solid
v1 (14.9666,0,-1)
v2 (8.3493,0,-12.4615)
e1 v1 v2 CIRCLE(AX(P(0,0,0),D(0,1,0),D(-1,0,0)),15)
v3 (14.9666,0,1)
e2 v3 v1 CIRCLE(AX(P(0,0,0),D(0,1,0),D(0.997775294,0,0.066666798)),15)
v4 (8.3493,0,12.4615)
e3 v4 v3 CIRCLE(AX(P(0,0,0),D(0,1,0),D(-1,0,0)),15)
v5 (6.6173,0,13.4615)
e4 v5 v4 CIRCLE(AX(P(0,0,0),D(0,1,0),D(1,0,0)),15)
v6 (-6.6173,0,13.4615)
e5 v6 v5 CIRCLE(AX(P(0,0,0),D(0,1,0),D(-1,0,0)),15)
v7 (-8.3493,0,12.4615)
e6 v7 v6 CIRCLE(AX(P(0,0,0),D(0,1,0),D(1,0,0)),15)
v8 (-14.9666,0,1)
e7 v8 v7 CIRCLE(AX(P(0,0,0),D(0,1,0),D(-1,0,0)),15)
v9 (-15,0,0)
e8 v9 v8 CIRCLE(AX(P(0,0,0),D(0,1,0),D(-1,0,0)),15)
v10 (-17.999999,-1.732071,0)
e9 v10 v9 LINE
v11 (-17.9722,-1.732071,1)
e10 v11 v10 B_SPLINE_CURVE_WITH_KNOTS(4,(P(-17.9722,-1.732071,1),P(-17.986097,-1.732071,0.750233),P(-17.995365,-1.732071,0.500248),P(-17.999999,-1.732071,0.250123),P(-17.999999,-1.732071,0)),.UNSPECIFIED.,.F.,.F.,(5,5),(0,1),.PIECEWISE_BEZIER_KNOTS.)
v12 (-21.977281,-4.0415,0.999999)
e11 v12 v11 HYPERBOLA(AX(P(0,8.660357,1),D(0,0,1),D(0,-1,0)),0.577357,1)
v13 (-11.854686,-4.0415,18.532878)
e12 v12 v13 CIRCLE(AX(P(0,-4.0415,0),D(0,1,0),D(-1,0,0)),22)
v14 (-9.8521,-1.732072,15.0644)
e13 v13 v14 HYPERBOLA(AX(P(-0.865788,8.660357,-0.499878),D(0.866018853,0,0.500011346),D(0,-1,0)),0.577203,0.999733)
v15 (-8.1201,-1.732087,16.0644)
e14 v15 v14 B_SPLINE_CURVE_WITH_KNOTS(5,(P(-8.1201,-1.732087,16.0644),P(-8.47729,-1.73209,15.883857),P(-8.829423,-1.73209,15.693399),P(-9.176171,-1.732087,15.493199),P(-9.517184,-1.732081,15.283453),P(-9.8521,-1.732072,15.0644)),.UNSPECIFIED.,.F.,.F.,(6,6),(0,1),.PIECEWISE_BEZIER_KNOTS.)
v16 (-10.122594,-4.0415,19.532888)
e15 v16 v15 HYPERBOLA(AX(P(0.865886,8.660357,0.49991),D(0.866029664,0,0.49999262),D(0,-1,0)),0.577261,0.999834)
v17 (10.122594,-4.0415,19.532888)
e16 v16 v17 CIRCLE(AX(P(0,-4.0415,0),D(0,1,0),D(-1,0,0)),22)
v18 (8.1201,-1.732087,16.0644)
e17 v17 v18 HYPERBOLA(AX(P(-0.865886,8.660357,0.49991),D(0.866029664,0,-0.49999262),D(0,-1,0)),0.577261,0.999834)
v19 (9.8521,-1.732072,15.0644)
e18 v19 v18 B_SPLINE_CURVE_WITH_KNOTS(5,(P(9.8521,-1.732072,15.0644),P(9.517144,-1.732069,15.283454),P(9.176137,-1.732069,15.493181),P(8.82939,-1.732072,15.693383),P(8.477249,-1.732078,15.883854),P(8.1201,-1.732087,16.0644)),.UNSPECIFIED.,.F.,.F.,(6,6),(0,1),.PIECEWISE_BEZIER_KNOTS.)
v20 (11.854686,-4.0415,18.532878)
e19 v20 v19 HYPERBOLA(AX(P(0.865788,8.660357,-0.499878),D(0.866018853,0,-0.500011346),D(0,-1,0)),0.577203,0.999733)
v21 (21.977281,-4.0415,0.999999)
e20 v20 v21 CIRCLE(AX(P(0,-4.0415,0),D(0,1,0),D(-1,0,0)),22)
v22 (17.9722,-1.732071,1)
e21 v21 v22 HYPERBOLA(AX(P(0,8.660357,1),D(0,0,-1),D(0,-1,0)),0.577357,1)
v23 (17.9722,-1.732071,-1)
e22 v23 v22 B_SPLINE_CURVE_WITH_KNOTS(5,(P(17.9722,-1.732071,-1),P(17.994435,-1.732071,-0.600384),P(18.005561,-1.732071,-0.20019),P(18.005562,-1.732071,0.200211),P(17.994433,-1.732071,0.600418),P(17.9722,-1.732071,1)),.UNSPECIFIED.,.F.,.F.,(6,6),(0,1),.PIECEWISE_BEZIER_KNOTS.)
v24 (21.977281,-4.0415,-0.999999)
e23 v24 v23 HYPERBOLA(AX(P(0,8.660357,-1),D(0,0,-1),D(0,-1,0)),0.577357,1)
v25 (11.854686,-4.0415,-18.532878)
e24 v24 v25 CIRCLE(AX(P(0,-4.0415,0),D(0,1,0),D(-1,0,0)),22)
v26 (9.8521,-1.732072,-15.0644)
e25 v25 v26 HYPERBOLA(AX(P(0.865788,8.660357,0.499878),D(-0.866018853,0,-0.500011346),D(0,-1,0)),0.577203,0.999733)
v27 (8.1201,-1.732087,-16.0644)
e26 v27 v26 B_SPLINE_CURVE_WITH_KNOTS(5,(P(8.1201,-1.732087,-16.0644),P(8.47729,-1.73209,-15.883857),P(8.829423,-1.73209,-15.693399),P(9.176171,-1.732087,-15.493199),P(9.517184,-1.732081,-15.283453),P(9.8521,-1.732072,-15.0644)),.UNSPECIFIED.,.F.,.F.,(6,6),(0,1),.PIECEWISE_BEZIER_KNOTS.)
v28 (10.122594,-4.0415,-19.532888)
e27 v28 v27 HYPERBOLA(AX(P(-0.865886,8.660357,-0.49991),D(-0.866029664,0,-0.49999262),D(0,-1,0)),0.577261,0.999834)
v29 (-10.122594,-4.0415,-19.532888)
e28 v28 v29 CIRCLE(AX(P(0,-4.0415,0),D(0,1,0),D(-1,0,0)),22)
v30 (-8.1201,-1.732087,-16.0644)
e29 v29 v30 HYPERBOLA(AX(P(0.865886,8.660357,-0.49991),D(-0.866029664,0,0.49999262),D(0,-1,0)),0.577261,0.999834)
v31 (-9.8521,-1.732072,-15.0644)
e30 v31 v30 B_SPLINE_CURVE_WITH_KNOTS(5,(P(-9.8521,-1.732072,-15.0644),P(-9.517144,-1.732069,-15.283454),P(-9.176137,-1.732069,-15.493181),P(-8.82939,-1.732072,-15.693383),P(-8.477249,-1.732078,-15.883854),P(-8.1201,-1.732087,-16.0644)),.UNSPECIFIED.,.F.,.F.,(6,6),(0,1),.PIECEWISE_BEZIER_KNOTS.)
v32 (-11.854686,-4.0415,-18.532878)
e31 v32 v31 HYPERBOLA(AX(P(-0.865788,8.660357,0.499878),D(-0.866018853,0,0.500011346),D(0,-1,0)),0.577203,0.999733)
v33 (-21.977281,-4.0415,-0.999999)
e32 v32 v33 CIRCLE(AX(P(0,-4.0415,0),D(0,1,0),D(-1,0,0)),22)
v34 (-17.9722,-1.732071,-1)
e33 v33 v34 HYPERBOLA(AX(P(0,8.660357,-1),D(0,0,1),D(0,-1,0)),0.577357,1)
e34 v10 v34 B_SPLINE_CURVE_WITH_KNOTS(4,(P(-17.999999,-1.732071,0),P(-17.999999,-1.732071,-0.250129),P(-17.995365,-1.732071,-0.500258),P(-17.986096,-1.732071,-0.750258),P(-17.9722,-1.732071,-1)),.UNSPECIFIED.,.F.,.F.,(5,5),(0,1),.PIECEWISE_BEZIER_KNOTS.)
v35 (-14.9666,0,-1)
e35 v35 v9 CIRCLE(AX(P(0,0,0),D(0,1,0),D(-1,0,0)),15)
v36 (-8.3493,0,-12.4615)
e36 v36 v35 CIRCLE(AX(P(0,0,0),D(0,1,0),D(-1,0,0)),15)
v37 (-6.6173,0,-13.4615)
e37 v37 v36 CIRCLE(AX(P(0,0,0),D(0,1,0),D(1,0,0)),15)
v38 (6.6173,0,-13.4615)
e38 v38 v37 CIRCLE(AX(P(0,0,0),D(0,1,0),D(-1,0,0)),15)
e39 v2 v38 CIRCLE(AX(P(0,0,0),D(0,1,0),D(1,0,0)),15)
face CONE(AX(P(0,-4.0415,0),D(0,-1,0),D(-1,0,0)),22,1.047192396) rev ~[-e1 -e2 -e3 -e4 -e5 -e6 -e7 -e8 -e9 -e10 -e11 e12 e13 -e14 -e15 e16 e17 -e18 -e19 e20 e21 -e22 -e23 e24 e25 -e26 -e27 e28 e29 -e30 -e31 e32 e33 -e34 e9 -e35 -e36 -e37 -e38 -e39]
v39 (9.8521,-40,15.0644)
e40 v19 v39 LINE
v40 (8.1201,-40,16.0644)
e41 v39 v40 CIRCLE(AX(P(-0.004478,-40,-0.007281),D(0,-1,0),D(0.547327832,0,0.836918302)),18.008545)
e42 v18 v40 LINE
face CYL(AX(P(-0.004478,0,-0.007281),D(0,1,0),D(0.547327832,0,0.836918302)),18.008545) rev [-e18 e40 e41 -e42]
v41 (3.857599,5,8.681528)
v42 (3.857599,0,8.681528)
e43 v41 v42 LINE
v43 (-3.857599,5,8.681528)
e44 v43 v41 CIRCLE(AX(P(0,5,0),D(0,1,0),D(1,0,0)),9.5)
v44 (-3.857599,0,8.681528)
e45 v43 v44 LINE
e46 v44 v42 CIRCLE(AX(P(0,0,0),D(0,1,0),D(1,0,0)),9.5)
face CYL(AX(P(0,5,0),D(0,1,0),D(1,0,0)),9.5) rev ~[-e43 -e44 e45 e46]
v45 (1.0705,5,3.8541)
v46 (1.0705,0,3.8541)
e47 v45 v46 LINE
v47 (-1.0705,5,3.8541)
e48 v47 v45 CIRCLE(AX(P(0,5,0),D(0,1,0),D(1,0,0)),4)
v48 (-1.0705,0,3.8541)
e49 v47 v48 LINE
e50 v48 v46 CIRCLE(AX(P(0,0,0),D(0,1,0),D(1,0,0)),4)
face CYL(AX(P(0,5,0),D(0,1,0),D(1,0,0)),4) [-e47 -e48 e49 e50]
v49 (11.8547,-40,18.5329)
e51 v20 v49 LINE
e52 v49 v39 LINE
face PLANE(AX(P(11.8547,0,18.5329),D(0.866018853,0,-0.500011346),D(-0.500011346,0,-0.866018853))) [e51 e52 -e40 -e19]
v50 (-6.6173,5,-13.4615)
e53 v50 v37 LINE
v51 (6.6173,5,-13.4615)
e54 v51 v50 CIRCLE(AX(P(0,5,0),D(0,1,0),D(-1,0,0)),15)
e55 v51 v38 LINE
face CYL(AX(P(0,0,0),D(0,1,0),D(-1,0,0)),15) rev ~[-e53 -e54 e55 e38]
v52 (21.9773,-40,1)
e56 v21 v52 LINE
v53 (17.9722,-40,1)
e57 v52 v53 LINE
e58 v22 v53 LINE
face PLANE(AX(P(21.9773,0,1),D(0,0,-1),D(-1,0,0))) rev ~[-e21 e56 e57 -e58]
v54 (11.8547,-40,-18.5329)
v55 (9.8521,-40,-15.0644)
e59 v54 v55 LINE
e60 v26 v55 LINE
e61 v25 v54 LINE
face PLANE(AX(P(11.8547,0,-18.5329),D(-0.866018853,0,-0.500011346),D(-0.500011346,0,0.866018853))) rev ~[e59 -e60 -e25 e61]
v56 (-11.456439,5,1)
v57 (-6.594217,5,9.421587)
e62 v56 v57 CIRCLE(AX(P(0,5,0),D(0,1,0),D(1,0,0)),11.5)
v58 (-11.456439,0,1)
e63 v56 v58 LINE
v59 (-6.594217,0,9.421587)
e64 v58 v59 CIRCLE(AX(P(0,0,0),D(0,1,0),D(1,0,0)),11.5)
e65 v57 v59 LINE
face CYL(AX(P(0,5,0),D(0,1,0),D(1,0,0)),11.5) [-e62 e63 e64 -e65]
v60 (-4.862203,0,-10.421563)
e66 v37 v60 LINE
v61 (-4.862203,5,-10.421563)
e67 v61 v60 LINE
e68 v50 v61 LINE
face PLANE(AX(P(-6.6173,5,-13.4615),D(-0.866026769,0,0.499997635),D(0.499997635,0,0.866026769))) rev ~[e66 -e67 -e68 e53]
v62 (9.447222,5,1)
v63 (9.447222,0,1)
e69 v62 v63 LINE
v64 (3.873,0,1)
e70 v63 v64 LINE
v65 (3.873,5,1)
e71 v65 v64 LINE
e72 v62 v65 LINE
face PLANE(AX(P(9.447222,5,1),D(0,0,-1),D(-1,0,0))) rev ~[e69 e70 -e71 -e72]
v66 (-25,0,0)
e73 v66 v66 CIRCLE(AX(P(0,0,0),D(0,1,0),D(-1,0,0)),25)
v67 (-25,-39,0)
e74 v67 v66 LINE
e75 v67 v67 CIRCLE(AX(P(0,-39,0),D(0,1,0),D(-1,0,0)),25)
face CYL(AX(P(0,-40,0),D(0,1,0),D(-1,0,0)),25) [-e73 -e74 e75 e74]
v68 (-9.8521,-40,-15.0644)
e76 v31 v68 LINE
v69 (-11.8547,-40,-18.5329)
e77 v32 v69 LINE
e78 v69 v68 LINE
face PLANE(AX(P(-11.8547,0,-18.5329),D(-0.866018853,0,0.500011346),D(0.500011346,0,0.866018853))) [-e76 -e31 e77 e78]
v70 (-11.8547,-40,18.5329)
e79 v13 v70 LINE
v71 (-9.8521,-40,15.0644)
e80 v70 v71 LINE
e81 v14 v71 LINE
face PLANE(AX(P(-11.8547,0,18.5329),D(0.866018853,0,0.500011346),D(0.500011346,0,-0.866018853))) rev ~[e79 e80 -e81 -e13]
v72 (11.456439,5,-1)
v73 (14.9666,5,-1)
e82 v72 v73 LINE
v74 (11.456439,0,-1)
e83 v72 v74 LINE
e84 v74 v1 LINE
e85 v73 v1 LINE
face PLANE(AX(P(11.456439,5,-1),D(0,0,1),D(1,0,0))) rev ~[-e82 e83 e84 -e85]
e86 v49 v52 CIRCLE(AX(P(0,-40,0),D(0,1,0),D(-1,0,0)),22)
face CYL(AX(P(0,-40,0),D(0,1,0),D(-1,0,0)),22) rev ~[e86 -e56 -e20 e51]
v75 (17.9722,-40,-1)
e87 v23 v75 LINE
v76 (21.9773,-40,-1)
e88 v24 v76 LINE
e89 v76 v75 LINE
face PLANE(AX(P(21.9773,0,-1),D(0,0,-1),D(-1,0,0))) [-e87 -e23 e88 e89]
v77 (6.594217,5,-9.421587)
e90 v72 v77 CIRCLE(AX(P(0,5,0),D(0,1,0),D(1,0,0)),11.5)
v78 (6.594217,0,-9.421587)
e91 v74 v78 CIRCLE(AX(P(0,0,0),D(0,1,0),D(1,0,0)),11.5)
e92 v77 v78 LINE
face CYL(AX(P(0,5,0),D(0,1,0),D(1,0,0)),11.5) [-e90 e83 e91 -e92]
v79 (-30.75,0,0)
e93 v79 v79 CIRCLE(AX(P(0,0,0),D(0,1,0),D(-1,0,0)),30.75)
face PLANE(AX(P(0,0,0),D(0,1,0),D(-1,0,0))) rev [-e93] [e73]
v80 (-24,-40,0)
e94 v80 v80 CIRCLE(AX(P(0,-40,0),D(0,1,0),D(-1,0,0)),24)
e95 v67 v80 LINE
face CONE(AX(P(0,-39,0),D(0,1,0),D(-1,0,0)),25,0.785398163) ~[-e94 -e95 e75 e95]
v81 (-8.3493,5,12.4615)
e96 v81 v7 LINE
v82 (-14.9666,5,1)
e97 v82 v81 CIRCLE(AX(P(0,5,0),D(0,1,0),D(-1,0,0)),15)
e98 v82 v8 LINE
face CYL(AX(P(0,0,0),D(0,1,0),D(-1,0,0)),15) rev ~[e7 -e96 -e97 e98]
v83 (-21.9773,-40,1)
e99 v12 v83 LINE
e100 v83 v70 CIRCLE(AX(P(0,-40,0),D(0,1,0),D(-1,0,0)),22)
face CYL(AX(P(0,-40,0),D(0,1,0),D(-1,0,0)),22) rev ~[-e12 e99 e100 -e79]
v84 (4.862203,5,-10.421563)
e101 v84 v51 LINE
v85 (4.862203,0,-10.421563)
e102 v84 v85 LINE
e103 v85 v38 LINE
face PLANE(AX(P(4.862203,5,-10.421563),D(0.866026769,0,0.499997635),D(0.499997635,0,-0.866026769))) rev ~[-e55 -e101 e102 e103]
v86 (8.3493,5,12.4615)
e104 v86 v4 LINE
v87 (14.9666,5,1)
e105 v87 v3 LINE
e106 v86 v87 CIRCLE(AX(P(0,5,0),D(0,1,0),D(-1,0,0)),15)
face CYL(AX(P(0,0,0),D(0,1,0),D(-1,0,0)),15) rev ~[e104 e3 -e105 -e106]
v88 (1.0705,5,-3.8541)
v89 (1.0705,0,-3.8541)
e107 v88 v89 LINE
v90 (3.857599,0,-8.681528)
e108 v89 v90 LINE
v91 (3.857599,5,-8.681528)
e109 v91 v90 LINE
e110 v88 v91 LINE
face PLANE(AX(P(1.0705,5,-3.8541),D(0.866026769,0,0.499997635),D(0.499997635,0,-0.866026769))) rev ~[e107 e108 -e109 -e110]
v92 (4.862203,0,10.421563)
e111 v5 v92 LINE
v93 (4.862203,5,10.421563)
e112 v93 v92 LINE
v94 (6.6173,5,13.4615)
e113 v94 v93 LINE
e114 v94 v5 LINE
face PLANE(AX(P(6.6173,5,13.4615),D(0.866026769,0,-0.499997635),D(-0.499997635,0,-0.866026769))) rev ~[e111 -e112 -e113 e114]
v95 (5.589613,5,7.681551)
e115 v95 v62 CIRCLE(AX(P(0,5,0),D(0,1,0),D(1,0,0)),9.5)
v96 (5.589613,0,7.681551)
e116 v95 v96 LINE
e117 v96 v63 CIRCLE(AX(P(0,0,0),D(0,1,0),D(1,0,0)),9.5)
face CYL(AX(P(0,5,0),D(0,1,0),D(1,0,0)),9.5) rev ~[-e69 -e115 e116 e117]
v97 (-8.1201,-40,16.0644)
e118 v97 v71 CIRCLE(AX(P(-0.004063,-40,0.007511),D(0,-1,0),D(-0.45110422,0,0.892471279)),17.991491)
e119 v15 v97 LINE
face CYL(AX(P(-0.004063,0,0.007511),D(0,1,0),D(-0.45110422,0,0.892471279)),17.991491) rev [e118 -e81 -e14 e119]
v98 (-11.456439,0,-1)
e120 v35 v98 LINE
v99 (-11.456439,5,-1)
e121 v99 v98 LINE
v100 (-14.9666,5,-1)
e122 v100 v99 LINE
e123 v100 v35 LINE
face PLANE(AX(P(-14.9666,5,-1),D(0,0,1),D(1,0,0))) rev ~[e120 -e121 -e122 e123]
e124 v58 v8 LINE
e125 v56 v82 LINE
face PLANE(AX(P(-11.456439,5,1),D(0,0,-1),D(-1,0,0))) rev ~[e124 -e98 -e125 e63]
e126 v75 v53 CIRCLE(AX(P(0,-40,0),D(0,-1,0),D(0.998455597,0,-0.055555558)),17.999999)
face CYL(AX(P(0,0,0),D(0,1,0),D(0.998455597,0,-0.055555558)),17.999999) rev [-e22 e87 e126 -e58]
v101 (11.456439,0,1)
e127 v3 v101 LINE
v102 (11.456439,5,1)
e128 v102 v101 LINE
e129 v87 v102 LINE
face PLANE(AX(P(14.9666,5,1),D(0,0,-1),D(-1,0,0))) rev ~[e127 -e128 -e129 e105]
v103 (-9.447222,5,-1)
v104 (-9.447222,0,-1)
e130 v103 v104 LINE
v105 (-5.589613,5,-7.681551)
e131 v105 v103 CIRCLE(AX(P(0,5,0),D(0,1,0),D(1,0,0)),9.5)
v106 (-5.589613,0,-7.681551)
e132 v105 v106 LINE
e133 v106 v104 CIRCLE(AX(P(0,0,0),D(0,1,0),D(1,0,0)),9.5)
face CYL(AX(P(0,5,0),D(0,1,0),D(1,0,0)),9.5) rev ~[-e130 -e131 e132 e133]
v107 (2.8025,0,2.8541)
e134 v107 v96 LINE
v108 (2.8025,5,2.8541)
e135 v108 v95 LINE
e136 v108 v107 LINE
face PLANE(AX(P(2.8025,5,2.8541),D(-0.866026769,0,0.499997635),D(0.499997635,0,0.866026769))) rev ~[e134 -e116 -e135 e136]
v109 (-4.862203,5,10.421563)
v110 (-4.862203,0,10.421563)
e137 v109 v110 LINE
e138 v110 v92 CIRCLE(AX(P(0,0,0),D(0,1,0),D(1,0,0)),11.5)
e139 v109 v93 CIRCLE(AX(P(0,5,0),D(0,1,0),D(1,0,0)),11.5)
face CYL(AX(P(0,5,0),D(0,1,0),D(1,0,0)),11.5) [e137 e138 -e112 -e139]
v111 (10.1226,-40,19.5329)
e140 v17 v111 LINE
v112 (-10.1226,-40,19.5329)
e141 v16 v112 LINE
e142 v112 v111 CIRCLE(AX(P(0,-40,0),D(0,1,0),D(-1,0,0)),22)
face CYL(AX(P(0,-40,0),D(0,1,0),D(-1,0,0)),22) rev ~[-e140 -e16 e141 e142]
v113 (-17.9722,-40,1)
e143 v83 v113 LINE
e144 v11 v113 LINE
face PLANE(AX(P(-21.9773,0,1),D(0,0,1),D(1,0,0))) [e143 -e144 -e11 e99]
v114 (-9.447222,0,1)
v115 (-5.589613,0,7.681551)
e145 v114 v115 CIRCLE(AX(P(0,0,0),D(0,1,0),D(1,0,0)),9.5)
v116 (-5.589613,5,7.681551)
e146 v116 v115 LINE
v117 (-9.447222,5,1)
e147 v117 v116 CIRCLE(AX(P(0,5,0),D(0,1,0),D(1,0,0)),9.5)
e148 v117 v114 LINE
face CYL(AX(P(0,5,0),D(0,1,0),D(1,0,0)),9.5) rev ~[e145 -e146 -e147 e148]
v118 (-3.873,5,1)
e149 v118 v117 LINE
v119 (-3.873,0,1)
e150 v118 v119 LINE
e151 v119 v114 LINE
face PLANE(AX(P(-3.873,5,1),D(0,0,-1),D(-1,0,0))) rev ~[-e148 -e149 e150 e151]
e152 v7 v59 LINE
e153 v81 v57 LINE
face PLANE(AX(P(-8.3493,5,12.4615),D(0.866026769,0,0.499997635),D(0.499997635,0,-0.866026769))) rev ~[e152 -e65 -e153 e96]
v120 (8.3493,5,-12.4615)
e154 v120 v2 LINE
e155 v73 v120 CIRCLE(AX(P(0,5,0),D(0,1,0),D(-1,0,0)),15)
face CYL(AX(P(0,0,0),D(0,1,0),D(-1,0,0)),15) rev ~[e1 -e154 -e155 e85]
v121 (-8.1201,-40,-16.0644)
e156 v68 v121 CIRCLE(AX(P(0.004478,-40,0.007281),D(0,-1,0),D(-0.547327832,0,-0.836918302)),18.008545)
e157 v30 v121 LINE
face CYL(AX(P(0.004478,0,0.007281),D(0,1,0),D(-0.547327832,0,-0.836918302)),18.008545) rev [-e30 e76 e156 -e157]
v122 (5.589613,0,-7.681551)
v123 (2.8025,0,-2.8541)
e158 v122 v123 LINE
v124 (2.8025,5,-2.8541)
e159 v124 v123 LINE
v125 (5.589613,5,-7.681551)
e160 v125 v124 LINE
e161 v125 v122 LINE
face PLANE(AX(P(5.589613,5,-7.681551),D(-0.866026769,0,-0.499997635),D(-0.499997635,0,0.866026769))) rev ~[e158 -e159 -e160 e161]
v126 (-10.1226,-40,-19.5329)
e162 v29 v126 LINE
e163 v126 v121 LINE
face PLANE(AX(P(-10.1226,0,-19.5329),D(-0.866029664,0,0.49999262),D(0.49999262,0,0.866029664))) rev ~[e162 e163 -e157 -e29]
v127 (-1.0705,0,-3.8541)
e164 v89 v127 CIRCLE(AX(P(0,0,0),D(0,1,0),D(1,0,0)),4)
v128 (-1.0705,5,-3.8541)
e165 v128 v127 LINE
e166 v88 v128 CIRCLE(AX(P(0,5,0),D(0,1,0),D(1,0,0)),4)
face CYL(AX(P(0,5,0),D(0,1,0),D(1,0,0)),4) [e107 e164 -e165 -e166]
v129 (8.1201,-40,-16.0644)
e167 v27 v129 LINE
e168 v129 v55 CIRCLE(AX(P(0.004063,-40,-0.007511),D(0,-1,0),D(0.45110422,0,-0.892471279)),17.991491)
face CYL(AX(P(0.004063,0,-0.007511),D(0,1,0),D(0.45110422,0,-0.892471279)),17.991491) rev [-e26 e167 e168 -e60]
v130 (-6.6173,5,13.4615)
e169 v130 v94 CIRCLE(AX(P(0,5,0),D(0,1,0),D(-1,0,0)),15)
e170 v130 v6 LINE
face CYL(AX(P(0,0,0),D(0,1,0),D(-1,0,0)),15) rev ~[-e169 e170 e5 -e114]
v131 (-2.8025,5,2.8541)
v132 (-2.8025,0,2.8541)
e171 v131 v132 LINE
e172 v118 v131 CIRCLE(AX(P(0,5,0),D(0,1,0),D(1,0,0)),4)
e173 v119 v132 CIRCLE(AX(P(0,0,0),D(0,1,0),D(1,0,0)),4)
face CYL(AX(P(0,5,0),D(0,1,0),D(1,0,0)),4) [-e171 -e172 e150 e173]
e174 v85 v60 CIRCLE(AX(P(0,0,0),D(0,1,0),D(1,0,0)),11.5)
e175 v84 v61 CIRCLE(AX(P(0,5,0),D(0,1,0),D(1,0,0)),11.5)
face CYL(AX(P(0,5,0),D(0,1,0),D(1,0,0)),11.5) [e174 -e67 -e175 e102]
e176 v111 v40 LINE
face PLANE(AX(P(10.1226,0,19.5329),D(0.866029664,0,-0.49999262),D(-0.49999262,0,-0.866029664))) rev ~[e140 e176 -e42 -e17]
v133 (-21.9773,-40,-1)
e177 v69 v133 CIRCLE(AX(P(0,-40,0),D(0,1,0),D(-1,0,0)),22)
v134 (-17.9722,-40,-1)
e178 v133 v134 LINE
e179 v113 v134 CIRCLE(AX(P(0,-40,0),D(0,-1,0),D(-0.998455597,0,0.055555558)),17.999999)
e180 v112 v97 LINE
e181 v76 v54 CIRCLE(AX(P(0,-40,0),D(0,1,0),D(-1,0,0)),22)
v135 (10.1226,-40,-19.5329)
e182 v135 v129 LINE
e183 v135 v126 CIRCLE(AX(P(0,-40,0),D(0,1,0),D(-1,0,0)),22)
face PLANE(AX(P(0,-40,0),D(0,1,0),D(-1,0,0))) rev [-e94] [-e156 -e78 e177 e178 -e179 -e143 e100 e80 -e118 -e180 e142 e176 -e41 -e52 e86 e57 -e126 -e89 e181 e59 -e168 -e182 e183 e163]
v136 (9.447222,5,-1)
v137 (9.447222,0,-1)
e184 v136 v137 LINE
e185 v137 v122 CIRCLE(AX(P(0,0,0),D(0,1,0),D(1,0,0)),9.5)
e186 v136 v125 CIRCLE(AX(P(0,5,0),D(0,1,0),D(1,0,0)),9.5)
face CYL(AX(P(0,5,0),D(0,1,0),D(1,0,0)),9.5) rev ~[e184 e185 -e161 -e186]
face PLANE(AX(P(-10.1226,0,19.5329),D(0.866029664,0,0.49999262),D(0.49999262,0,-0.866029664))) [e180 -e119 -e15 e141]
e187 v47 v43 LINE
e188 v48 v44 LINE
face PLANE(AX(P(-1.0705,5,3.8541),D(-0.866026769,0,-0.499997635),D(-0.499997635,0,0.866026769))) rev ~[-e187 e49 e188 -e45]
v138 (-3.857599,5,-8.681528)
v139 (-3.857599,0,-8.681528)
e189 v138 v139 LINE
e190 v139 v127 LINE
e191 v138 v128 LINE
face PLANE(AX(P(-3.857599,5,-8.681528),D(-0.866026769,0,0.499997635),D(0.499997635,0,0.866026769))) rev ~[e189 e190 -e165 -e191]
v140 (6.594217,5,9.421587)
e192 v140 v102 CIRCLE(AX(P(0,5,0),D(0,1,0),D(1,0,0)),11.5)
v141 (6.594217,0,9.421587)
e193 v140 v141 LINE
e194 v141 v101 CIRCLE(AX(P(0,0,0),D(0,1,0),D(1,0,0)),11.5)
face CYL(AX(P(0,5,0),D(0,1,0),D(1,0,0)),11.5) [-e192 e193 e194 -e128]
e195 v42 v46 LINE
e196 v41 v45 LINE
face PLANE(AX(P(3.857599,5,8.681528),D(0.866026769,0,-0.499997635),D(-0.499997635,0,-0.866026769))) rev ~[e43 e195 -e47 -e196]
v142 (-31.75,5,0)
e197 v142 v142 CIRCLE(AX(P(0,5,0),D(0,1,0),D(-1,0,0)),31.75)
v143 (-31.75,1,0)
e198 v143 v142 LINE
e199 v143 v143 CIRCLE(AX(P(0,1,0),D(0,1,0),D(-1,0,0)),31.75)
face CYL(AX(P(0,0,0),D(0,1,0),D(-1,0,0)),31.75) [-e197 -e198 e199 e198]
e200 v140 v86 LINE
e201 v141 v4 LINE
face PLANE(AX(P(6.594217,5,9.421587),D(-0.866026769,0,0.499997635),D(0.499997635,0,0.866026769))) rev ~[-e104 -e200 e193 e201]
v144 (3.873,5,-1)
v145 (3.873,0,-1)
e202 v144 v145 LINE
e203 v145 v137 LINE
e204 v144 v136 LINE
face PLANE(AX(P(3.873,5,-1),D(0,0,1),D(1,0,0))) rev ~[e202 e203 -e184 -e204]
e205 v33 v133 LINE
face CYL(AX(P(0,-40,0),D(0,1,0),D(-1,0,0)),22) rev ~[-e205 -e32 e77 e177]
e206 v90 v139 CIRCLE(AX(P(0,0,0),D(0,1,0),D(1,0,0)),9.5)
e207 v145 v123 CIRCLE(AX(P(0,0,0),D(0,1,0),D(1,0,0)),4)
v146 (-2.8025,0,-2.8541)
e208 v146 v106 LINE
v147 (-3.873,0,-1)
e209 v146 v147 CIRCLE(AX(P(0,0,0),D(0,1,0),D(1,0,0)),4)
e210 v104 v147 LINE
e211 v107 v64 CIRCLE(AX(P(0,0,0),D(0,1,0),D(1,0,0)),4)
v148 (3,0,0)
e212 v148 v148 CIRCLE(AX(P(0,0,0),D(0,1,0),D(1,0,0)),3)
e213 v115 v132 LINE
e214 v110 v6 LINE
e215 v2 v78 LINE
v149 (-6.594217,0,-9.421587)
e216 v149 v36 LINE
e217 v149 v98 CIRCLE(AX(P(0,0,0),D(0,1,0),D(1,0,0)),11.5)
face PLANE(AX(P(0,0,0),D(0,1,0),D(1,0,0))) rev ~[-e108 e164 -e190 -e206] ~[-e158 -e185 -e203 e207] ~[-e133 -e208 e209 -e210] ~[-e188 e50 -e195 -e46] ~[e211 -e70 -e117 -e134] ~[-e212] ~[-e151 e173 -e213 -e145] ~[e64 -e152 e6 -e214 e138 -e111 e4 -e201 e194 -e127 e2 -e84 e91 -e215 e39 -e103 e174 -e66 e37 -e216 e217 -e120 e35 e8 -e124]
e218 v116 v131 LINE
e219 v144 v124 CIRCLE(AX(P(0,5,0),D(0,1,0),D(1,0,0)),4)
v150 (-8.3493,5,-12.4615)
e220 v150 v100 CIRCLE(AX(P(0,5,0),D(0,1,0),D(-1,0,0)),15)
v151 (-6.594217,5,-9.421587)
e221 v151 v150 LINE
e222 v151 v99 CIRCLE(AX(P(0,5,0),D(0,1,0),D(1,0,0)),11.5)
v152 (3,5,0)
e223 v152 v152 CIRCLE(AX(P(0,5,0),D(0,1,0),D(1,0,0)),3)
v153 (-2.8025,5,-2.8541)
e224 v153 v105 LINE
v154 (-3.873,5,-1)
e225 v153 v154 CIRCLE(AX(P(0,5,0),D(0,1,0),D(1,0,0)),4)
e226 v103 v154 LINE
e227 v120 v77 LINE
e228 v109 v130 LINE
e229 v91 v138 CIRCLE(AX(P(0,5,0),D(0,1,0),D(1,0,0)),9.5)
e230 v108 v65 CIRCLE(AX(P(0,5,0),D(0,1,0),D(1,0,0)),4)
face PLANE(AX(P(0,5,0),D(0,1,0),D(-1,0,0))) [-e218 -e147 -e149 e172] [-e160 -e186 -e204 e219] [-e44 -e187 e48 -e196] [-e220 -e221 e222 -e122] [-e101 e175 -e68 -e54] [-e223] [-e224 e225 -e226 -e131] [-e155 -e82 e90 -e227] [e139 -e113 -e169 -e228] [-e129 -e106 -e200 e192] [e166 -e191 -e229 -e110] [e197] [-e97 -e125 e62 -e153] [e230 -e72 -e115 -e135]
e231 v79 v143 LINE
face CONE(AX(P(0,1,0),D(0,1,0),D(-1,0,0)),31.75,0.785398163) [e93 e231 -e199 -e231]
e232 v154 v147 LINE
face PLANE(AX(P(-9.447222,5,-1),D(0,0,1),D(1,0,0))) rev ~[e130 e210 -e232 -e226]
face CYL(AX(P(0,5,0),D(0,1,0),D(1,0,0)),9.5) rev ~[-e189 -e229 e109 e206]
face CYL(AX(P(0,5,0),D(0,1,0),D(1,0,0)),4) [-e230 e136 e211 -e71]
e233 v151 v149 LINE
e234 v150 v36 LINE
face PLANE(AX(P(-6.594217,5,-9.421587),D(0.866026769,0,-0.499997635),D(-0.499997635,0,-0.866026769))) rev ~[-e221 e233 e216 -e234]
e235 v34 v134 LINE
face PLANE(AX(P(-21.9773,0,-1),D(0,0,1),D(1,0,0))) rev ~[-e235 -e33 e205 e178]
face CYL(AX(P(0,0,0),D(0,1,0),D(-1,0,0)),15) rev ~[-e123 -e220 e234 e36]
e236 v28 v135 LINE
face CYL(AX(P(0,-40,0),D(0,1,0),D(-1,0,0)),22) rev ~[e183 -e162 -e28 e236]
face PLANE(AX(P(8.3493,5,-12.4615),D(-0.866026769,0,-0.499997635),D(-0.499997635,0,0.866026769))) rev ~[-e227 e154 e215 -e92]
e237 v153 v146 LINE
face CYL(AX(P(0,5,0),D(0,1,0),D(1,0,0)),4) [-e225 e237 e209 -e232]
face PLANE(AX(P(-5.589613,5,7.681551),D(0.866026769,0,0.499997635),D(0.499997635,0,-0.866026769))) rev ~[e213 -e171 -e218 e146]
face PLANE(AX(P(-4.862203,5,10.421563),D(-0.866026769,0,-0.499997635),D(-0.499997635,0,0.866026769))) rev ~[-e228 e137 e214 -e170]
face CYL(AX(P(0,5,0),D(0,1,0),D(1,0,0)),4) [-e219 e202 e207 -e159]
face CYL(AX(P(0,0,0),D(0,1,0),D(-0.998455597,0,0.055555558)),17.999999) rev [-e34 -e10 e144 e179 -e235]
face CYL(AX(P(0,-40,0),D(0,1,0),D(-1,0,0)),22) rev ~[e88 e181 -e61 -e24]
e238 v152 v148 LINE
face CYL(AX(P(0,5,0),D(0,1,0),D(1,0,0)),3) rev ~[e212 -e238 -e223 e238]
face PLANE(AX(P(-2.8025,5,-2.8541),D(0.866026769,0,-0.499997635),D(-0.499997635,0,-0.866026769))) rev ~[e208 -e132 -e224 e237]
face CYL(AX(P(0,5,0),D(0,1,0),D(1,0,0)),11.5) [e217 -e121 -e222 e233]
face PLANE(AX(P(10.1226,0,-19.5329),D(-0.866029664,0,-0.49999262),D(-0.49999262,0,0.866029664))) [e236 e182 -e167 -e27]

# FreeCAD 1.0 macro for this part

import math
import FreeCAD as App
import Part
import Sketcher
from FreeCAD import Vector
Q = App.Units.Quantity


def edges_at(feature, points):
    """Names of the edges that pass closest to the given points."""
    edges = feature.Shape.Edges
    near = lambda p: min(range(len(edges)), key=lambda i: edges[i].distToShape(Part.Vertex(*p))[0])
    return sorted({f"Edge{near(p) + 1}" for p in points})

doc = App.newDocument("Part")
params = doc.addObject("Spreadsheet::Sheet", "Params")
for row, (alias, value) in enumerate([
    ("sketch1_width", "3 mm"),
    ("sketch1_height", "40 mm"),
    ("sketch1_height2", "5 mm"),
    ("sketch1_width2", "16.75 mm"),
    ("revolution_angle", "360 deg"),
    ("sketch2_diameter", "6 mm"),
    ("sketch2_radius", "4 mm"),
    ("sketch2_radius2", "11.5 mm"),
    ("sketch2_radius3", "9.5 mm"),
    ("sketch2_radius4", "15 mm"),
    ("pad1_length", "5 mm"),
    ("chamfer_size", "1 mm"),
    ("sketch3_radius", "18 mm"),
    ("sketch3_radius2", "22 mm"),
    ("pad2_length", "40 mm"),
], start=1):
    params.set(f"A{row}", alias)
    params.set(f"B{row}", "=" + value)
    params.setAlias(f"B{row}", alias)

body = doc.addObject("PartDesign::Body", "Body")

sketch1 = doc.addObject("Sketcher::SketchObject", "Sketch")
body.addObject(sketch1)
sketch1.AttachmentSupport = (doc.XY_Plane, [""])
sketch1.MapMode = "FlatFace"
sketch1.addGeometry([
    Part.LineSegment(Vector(-25, 0, 0), Vector(-25, -40, 0)),
    Part.LineSegment(Vector(-25, -40, 0), Vector(-22, -40, 0)),
    Part.LineSegment(Vector(-22, -40, 0), Vector(-22, -4, 0)),
    Part.LineSegment(Vector(-22, -4, 0), Vector(-15, 0, 0)),
    Part.LineSegment(Vector(-15, 0, 0), Vector(-15, 5, 0)),
    Part.LineSegment(Vector(-15, 5, 0), Vector(-31.8, 5, 0)),
    Part.LineSegment(Vector(-31.8, 5, 0), Vector(-31.8, 0, 0)),
    Part.LineSegment(Vector(-31.8, 0, 0), Vector(-25, 0, 0)),
], False)
sketch1.addConstraint([
    Sketcher.Constraint("Coincident", 0, 2, 1, 1),
    Sketcher.Constraint("Coincident", 1, 2, 2, 1),
    Sketcher.Constraint("Coincident", 2, 2, 3, 1),
    Sketcher.Constraint("Coincident", 3, 2, 4, 1),
    Sketcher.Constraint("Coincident", 4, 2, 5, 1),
    Sketcher.Constraint("Coincident", 5, 2, 6, 1),
    Sketcher.Constraint("Coincident", 6, 2, 7, 1),
    Sketcher.Constraint("Coincident", 7, 2, 0, 1),
    Sketcher.Constraint("Vertical", 0),
    Sketcher.Constraint("Horizontal", 1),
    Sketcher.Constraint("Vertical", 2),
    Sketcher.Constraint("Vertical", 4),
    Sketcher.Constraint("Horizontal", 5),
    Sketcher.Constraint("Vertical", 6),
    Sketcher.Constraint("Horizontal", 7),
    Sketcher.Constraint("PointOnObject", 3, 2, -1),
    Sketcher.Constraint("PointOnObject", 6, 2, -1),
    Sketcher.Constraint("DistanceX", 1, 1, 1, 2, Q("3 mm")),
    Sketcher.Constraint("DistanceY", 0, 2, 0, 1, Q("40 mm")),
    Sketcher.Constraint("DistanceY", 4, 1, 4, 2, Q("5 mm")),
    Sketcher.Constraint("Angle", 3, Q("30.0003 deg")),
    Sketcher.Constraint("DistanceX", 2, 2, 3, 2, Q("7 mm")),
    Sketcher.Constraint("DistanceX", 0, 2, -1, 1, Q("25 mm")),
    Sketcher.Constraint("DistanceX", 5, 2, 5, 1, Q("16.75 mm")),
])
sketch1.setExpression("Constraints[17]", "Params.sketch1_width")
sketch1.setExpression("Constraints[18]", "Params.sketch1_height")
sketch1.setExpression("Constraints[19]", "Params.sketch1_height2")
sketch1.setExpression("Constraints[23]", "Params.sketch1_width2")
revolution = doc.addObject("PartDesign::Revolution", "Revolution")
body.addObject(revolution)
revolution.Profile = sketch1
revolution.ReferenceAxis = (sketch1, ["V_Axis"])
revolution.setExpression("Angle", "Params.revolution_angle")

sketch2 = doc.addObject("Sketcher::SketchObject", "Sketch001")
body.addObject(sketch2)
sketch2.AttachmentSupport = (doc.XZ_Plane, [""])
sketch2.MapMode = "FlatFace"
sketch2.AttachmentOffset = App.Placement(Vector(0, 0, -5), App.Rotation())
sketch2.addGeometry([
    Part.ArcOfCircle(Part.Circle(Vector(0, 0, 0), Vector(0, 0, 1), 15), math.radians(-3.82), math.radians(3.82)),
    Part.LineSegment(Vector(15, -1, 0), Vector(11.5, -1, 0)),
    Part.ArcOfCircle(Part.Circle(Vector(0, 0, 0), Vector(0, 0, 1), 11.5), math.radians(-55), math.radians(-5)),
    Part.LineSegment(Vector(6.6, -9.4, 0), Vector(8.3, -12.5, 0)),
    Part.ArcOfCircle(Part.Circle(Vector(0, 0, 0), Vector(0, 0, 1), 15), math.radians(-63.82), math.radians(-56.18)),
    Part.LineSegment(Vector(6.6, -13.5, 0), Vector(4.9, -10.4, 0)),
    Part.ArcOfCircle(Part.Circle(Vector(0, 0, 0), Vector(0, 0, 1), 11.5), math.radians(-115), math.radians(-65)),
    Part.LineSegment(Vector(-4.9, -10.4, 0), Vector(-6.6, -13.5, 0)),
    Part.ArcOfCircle(Part.Circle(Vector(0, 0, 0), Vector(0, 0, 1), 15), math.radians(-123.82), math.radians(-116.18)),
    Part.LineSegment(Vector(-8.3, -12.5, 0), Vector(-6.6, -9.4, 0)),
    Part.ArcOfCircle(Part.Circle(Vector(0, 0, 0), Vector(0, 0, 1), 11.5), math.radians(-175), math.radians(-125)),
    Part.LineSegment(Vector(-11.5, -1, 0), Vector(-15, -1, 0)),
    Part.ArcOfCircle(Part.Circle(Vector(0, 0, 0), Vector(0, 0, 1), 15), math.radians(176.18), math.radians(183.82)),
    Part.LineSegment(Vector(-15, 1, 0), Vector(-11.5, 1, 0)),
    Part.ArcOfCircle(Part.Circle(Vector(0, 0, 0), Vector(0, 0, 1), 11.5), math.radians(125), math.radians(175)),
    Part.LineSegment(Vector(-6.6, 9.4, 0), Vector(-8.3, 12.5, 0)),
    Part.ArcOfCircle(Part.Circle(Vector(0, 0, 0), Vector(0, 0, 1), 15), math.radians(116.18), math.radians(123.82)),
    Part.LineSegment(Vector(-6.6, 13.5, 0), Vector(-4.9, 10.4, 0)),
    Part.ArcOfCircle(Part.Circle(Vector(0, 0, 0), Vector(0, 0, 1), 11.5), math.radians(65), math.radians(115)),
    Part.LineSegment(Vector(4.9, 10.4, 0), Vector(6.6, 13.5, 0)),
    Part.ArcOfCircle(Part.Circle(Vector(0, 0, 0), Vector(0, 0, 1), 15), math.radians(56.18), math.radians(63.82)),
    Part.LineSegment(Vector(8.3, 12.5, 0), Vector(6.6, 9.4, 0)),
    Part.ArcOfCircle(Part.Circle(Vector(0, 0, 0), Vector(0, 0, 1), 11.5), math.radians(5), math.radians(55)),
    Part.LineSegment(Vector(11.5, 1, 0), Vector(15, 1, 0)),
    Part.LineSegment(Vector(9.4, -1, 0), Vector(3.9, -1, 0)),
    Part.ArcOfCircle(Part.Circle(Vector(0, 0, 0), Vector(0, 0, 1), 4), math.radians(-46), math.radians(-14)),
    Part.LineSegment(Vector(2.8, -2.9, 0), Vector(5.6, -7.7, 0)),
    Part.ArcOfCircle(Part.Circle(Vector(0, 0, 0), Vector(0, 0, 1), 9.5), math.radians(-54), math.radians(-6)),
    Part.LineSegment(Vector(3.9, 1, 0), Vector(9.4, 1, 0)),
    Part.ArcOfCircle(Part.Circle(Vector(0, 0, 0), Vector(0, 0, 1), 9.5), math.radians(6), math.radians(54)),
    Part.LineSegment(Vector(5.6, 7.7, 0), Vector(2.8, 2.9, 0)),
    Part.ArcOfCircle(Part.Circle(Vector(0, 0, 0), Vector(0, 0, 1), 4), math.radians(14), math.radians(46)),
    Part.Circle(Vector(0, 0, 0), Vector(0, 0, 1), 3),
    Part.ArcOfCircle(Part.Circle(Vector(0, 0, 0), Vector(0, 0, 1), 4), math.radians(74), math.radians(106)),
    Part.LineSegment(Vector(1.1, 3.9, 0), Vector(3.9, 8.7, 0)),
    Part.ArcOfCircle(Part.Circle(Vector(0, 0, 0), Vector(0, 0, 1), 9.5), math.radians(66), math.radians(114)),
    Part.LineSegment(Vector(-3.9, 8.7, 0), Vector(-1.1, 3.9, 0)),
    Part.ArcOfCircle(Part.Circle(Vector(0, 0, 0), Vector(0, 0, 1), 4), math.radians(134), math.radians(166)),
    Part.LineSegment(Vector(-2.8, 2.9, 0), Vector(-5.6, 7.7, 0)),
    Part.ArcOfCircle(Part.Circle(Vector(0, 0, 0), Vector(0, 0, 1), 9.5), math.radians(126), math.radians(174)),
    Part.LineSegment(Vector(-9.4, 1, 0), Vector(-3.9, 1, 0)),
    Part.ArcOfCircle(Part.Circle(Vector(0, 0, 0), Vector(0, 0, 1), 4), math.radians(-166), math.radians(-134)),
    Part.LineSegment(Vector(-3.9, -1, 0), Vector(-9.4, -1, 0)),
    Part.ArcOfCircle(Part.Circle(Vector(0, 0, 0), Vector(0, 0, 1), 9.5), math.radians(-174), math.radians(-126)),
    Part.LineSegment(Vector(-5.6, -7.7, 0), Vector(-2.8, -2.9, 0)),
    Part.ArcOfCircle(Part.Circle(Vector(0, 0, 0), Vector(0, 0, 1), 4), math.radians(-106), math.radians(-74)),
    Part.LineSegment(Vector(-1.1, -3.9, 0), Vector(-3.9, -8.7, 0)),
    Part.ArcOfCircle(Part.Circle(Vector(0, 0, 0), Vector(0, 0, 1), 9.5), math.radians(-114), math.radians(-66)),
    Part.LineSegment(Vector(3.9, -8.7, 0), Vector(1.1, -3.9, 0)),
], False)
sketch2.addConstraint([
    Sketcher.Constraint("Coincident", 0, 1, 1, 1),
    Sketcher.Constraint("Coincident", 1, 2, 2, 2),
    Sketcher.Constraint("Coincident", 2, 1, 3, 1),
    Sketcher.Constraint("Coincident", 3, 2, 4, 2),
    Sketcher.Constraint("Coincident", 4, 1, 5, 1),
    Sketcher.Constraint("Coincident", 5, 2, 6, 2),
    Sketcher.Constraint("Coincident", 6, 1, 7, 1),
    Sketcher.Constraint("Coincident", 7, 2, 8, 2),
    Sketcher.Constraint("Coincident", 8, 1, 9, 1),
    Sketcher.Constraint("Coincident", 9, 2, 10, 2),
    Sketcher.Constraint("Coincident", 10, 1, 11, 1),
    Sketcher.Constraint("Coincident", 11, 2, 12, 2),
    Sketcher.Constraint("Coincident", 12, 1, 13, 1),
    Sketcher.Constraint("Coincident", 13, 2, 14, 2),
    Sketcher.Constraint("Coincident", 14, 1, 15, 1),
    Sketcher.Constraint("Coincident", 15, 2, 16, 2),
    Sketcher.Constraint("Coincident", 16, 1, 17, 1),
    Sketcher.Constraint("Coincident", 17, 2, 18, 2),
    Sketcher.Constraint("Coincident", 18, 1, 19, 1),
    Sketcher.Constraint("Coincident", 19, 2, 20, 2),
    Sketcher.Constraint("Coincident", 20, 1, 21, 1),
    Sketcher.Constraint("Coincident", 21, 2, 22, 2),
    Sketcher.Constraint("Coincident", 22, 1, 23, 1),
    Sketcher.Constraint("Coincident", 23, 2, 0, 2),
    Sketcher.Constraint("Coincident", 24, 2, 25, 2),
    Sketcher.Constraint("Coincident", 25, 1, 26, 1),
    Sketcher.Constraint("Coincident", 26, 2, 27, 1),
    Sketcher.Constraint("Coincident", 27, 2, 24, 1),
    Sketcher.Constraint("Coincident", 28, 2, 29, 1),
    Sketcher.Constraint("Coincident", 29, 2, 30, 1),
    Sketcher.Constraint("Coincident", 30, 2, 31, 2),
    Sketcher.Constraint("Coincident", 31, 1, 28, 1),
    Sketcher.Constraint("Coincident", 33, 1, 34, 1),
    Sketcher.Constraint("Coincident", 34, 2, 35, 1),
    Sketcher.Constraint("Coincident", 35, 2, 36, 1),
    Sketcher.Constraint("Coincident", 36, 2, 33, 2),
    Sketcher.Constraint("Coincident", 37, 1, 38, 1),
    Sketcher.Constraint("Coincident", 38, 2, 39, 1),
    Sketcher.Constraint("Coincident", 39, 2, 40, 1),
    Sketcher.Constraint("Coincident", 40, 2, 37, 2),
    Sketcher.Constraint("Coincident", 41, 1, 42, 1),
    Sketcher.Constraint("Coincident", 42, 2, 43, 1),
    Sketcher.Constraint("Coincident", 43, 2, 44, 1),
    Sketcher.Constraint("Coincident", 44, 2, 41, 2),
    Sketcher.Constraint("Coincident", 45, 1, 46, 1),
    Sketcher.Constraint("Coincident", 46, 2, 47, 1),
    Sketcher.Constraint("Coincident", 47, 2, 48, 1),
    Sketcher.Constraint("Coincident", 48, 2, 45, 2),
    Sketcher.Constraint("Horizontal", 1),
    Sketcher.Constraint("Horizontal", 11),
    Sketcher.Constraint("Horizontal", 13),
    Sketcher.Constraint("Horizontal", 23),
    Sketcher.Constraint("Horizontal", 24),
    Sketcher.Constraint("Horizontal", 28),
    Sketcher.Constraint("Horizontal", 40),
    Sketcher.Constraint("Horizontal", 42),
    Sketcher.Constraint("Coincident", 0, 3, -1, 1),
    Sketcher.Constraint("Coincident", 2, 3, -1, 1),
    Sketcher.Constraint("Coincident", 4, 3, -1, 1),
    Sketcher.Constraint("Coincident", 6, 3, -1, 1),
    Sketcher.Constraint("Coincident", 8, 3, -1, 1),
    Sketcher.Constraint("Coincident", 10, 3, -1, 1),
    Sketcher.Constraint("Coincident", 12, 3, -1, 1),
    Sketcher.Constraint("Coincident", 14, 3, -1, 1),
    Sketcher.Constraint("Coincident", 16, 3, -1, 1),
    Sketcher.Constraint("Coincident", 18, 3, -1, 1),
    Sketcher.Constraint("Coincident", 20, 3, -1, 1),
    Sketcher.Constraint("Coincident", 22, 3, -1, 1),
    Sketcher.Constraint("Coincident", 25, 3, -1, 1),
    Sketcher.Constraint("Coincident", 27, 3, -1, 1),
    Sketcher.Constraint("Coincident", 29, 3, -1, 1),
    Sketcher.Constraint("Coincident", 31, 3, -1, 1),
    Sketcher.Constraint("Coincident", 32, 3, -1, 1),
    Sketcher.Constraint("Coincident", 33, 3, -1, 1),
    Sketcher.Constraint("Coincident", 35, 3, -1, 1),
    Sketcher.Constraint("Coincident", 37, 3, -1, 1),
    Sketcher.Constraint("Coincident", 39, 3, -1, 1),
    Sketcher.Constraint("Coincident", 41, 3, -1, 1),
    Sketcher.Constraint("Coincident", 43, 3, -1, 1),
    Sketcher.Constraint("Coincident", 45, 3, -1, 1),
    Sketcher.Constraint("Coincident", 47, 3, -1, 1),
    Sketcher.Constraint("Equal", 0, 4),
    Sketcher.Constraint("Equal", 2, 6),
    Sketcher.Constraint("Equal", 4, 8),
    Sketcher.Constraint("Equal", 6, 10),
    Sketcher.Constraint("Equal", 8, 12),
    Sketcher.Constraint("Equal", 10, 14),
    Sketcher.Constraint("Equal", 12, 16),
    Sketcher.Constraint("Equal", 14, 18),
    Sketcher.Constraint("Equal", 16, 20),
    Sketcher.Constraint("Equal", 18, 22),
    Sketcher.Constraint("Equal", 27, 29),
    Sketcher.Constraint("Equal", 25, 31),
    Sketcher.Constraint("Equal", 31, 33),
    Sketcher.Constraint("Equal", 29, 35),
    Sketcher.Constraint("Equal", 33, 37),
    Sketcher.Constraint("Equal", 35, 39),
    Sketcher.Constraint("Equal", 37, 41),
    Sketcher.Constraint("Equal", 39, 43),
    Sketcher.Constraint("Equal", 41, 45),
    Sketcher.Constraint("Equal", 43, 47),
    Sketcher.Constraint("Parallel", 3, 5),
    Sketcher.Constraint("Parallel", 7, 9),
    Sketcher.Constraint("Parallel", 5, 15),
    Sketcher.Constraint("Parallel", 15, 17),
    Sketcher.Constraint("Parallel", 9, 19),
    Sketcher.Constraint("Parallel", 19, 21),
    Sketcher.Constraint("Parallel", 17, 26),
    Sketcher.Constraint("Parallel", 21, 30),
    Sketcher.Constraint("Parallel", 30, 34),
    Sketcher.Constraint("Parallel", 26, 36),
    Sketcher.Constraint("Parallel", 36, 38),
    Sketcher.Constraint("Parallel", 34, 44),
    Sketcher.Constraint("Parallel", 44, 46),
    Sketcher.Constraint("Parallel", 38, 48),
    Sketcher.Constraint("Horizontal", 5, 2, 6, 1),
    Sketcher.Constraint("Horizontal", 4, 1, 7, 2),
    Sketcher.Constraint("Horizontal", 3, 2, 8, 1),
    Sketcher.Constraint("Horizontal", 1, 2, 10, 1),
    Sketcher.Constraint("Horizontal", 17, 2, 18, 1),
    Sketcher.Constraint("Horizontal", 15, 2, 20, 1),
    Sketcher.Constraint("Horizontal", 13, 2, 22, 1),
    Sketcher.Constraint("Horizontal", 11, 2, 24, 2),
    Sketcher.Constraint("Horizontal", 23, 2, 28, 2),
    Sketcher.Constraint("Horizontal", 34, 2, 35, 2),
    Sketcher.Constraint("Horizontal", 30, 2, 37, 1),
    Sketcher.Constraint("Horizontal", 31, 1, 39, 2),
    Sketcher.Constraint("Horizontal", 27, 2, 41, 1),
    Sketcher.Constraint("Horizontal", 26, 2, 43, 2),
    Sketcher.Constraint("Horizontal", 46, 2, 47, 2),
    Sketcher.Constraint("Vertical", 11, 2, 12, 1),
    Sketcher.Constraint("Vertical", 9, 2, 14, 1),
    Sketcher.Constraint("Vertical", 7, 2, 16, 1),
    Sketcher.Constraint("Vertical", 26, 2, 29, 2),
    Sketcher.Constraint("Vertical", 36, 2, 45, 1),
    Sketcher.Constraint("Equal", 3, 5),
    Sketcher.Constraint("Equal", 30, 34),
    Sketcher.Constraint("Diameter", 32, Q("6 mm")),
    Sketcher.Constraint("Radius", 25, Q("4 mm")),
    Sketcher.Constraint("Radius", 2, Q("11.5 mm")),
    Sketcher.Constraint("Radius", 27, Q("9.5 mm")),
    Sketcher.Constraint("Radius", 0, Q("15 mm")),
    Sketcher.Constraint("Angle", 3, Q("-60.0002 deg")),
    Sketcher.Constraint("DistanceY", 0, 1, -1, 1, Q("1 mm")),
    Sketcher.Constraint("DistanceY", 25, 1, -1, 1, Q("2.854 mm")),
    Sketcher.Constraint("Distance", 3, Q("3.5102 mm")),
])
sketch2.setExpression("Constraints[137]", "Params.sketch2_diameter")
sketch2.setExpression("Constraints[138]", "Params.sketch2_radius")
sketch2.setExpression("Constraints[139]", "Params.sketch2_radius2")
sketch2.setExpression("Constraints[140]", "Params.sketch2_radius3")
sketch2.setExpression("Constraints[141]", "Params.sketch2_radius4")
pad1 = doc.addObject("PartDesign::Pad", "Pad")
body.addObject(pad1)
pad1.Profile = sketch2
pad1.setExpression("Length", "Params.pad1_length")
doc.recompute()

chamfer = doc.addObject("PartDesign::Chamfer", "Chamfer")
body.addObject(chamfer)
chamfer.Base = (pad1, edges_at(pad1, [(31.75, 0, 0), (25, -40, 0)]))
chamfer.setExpression("Size", "Params.chamfer_size")

sketch3 = doc.addObject("Sketcher::SketchObject", "Sketch002")
body.addObject(sketch3)
sketch3.AttachmentSupport = (doc.XZ_Plane, [""])
sketch3.MapMode = "FlatFace"
sketch3.addGeometry([
    Part.ArcOfCircle(Part.Circle(Vector(0, 0, 0), Vector(0, 0, 1), 22), math.radians(-2.605247), math.radians(2.605247)),
    Part.LineSegment(Vector(21.9773, 1, 0), Vector(17.9722, 1, 0)),
    Part.ArcOfCircle(Part.Circle(Vector(0, 0, 0), Vector(0, 0, 1), 17.999999), math.radians(-3.184739), math.radians(3.184739)),
    Part.LineSegment(Vector(17.9722, -1, 0), Vector(21.9773, -1, 0)),
    Part.LineSegment(Vector(9.8521, 15.0644, 0), Vector(11.8547, 18.5329, 0)),
    Part.ArcOfCircle(Part.Circle(Vector(0, 0, 0), Vector(0, 0, 1), 22), math.radians(57.394699), math.radians(62.605303)),
    Part.LineSegment(Vector(10.1226, 19.5329, 0), Vector(8.1201, 16.0644, 0)),
    Part.ArcOfCircle(Part.Circle(Vector(-0.004478, -0.007281, 0), Vector(0, 0, 1), 18.008545), math.radians(56.816116), math.radians(63.182428)),
    Part.ArcOfCircle(Part.Circle(Vector(0, 0, 0), Vector(0, 0, 1), 22), math.radians(-62.605303), math.radians(-57.394699)),
    Part.LineSegment(Vector(11.8547, -18.5329, 0), Vector(9.8521, -15.0644, 0)),
    Part.ArcOfCircle(Part.Circle(Vector(0.004063, -0.007511, 0), Vector(0, 0, 1), 17.991491), math.radians(-63.185448), math.radians(-56.813096)),
    Part.LineSegment(Vector(8.1201, -16.0644, 0), Vector(10.1226, -19.5329, 0)),
    Part.LineSegment(Vector(-8.1201, 16.0644, 0), Vector(-10.1226, 19.5329, 0)),
    Part.ArcOfCircle(Part.Circle(Vector(0, 0, 0), Vector(0, 0, 1), 22), math.radians(117.394697), math.radians(122.605301)),
    Part.LineSegment(Vector(-11.8547, 18.5329, 0), Vector(-9.8521, 15.0644, 0)),
    Part.ArcOfCircle(Part.Circle(Vector(-0.004063, 0.007511, 0), Vector(0, 0, 1), 17.991491), math.radians(116.814552), math.radians(123.186904)),
    Part.ArcOfCircle(Part.Circle(Vector(0, 0, 0), Vector(0, 0, 1), 22), math.radians(-122.605301), math.radians(-117.394697)),
    Part.LineSegment(Vector(-10.1226, -19.5329, 0), Vector(-8.1201, -16.0644, 0)),
    Part.ArcOfCircle(Part.Circle(Vector(0.004478, 0.007281, 0), Vector(0, 0, 1), 18.008545), math.radians(-123.183884), math.radians(-116.817572)),
    Part.LineSegment(Vector(-9.8521, -15.0644, 0), Vector(-11.8547, -18.5329, 0)),
    Part.LineSegment(Vector(-17.9722, 1, 0), Vector(-21.9773, 1, 0)),
    Part.ArcOfCircle(Part.Circle(Vector(0, 0, 0), Vector(0, 0, 1), 22), math.radians(177.394753), math.radians(182.605247)),
    Part.LineSegment(Vector(-21.9773, -1, 0), Vector(-17.9722, -1, 0)),
    Part.ArcOfCircle(Part.Circle(Vector(0, 0, 0), Vector(0, 0, 1), 17.999999), math.radians(176.815261), math.radians(183.184739)),
], False)
sketch3.addConstraint([
    Sketcher.Constraint("Coincident", 0, 2, 1, 1),
    Sketcher.Constraint("Coincident", 1, 2, 2, 2),
    Sketcher.Constraint("Coincident", 2, 1, 3, 1),
    Sketcher.Constraint("Coincident", 3, 2, 0, 1),
    Sketcher.Constraint("Coincident", 4, 2, 5, 1),
    Sketcher.Constraint("Coincident", 5, 2, 6, 1),
    Sketcher.Constraint("Coincident", 6, 2, 7, 2),
    Sketcher.Constraint("Coincident", 7, 1, 4, 1),
    Sketcher.Constraint("Coincident", 8, 2, 9, 1),
    Sketcher.Constraint("Coincident", 9, 2, 10, 2),
    Sketcher.Constraint("Coincident", 10, 1, 11, 1),
    Sketcher.Constraint("Coincident", 11, 2, 8, 1),
    Sketcher.Constraint("Coincident", 12, 2, 13, 1),
    Sketcher.Constraint("Coincident", 13, 2, 14, 1),
    Sketcher.Constraint("Coincident", 14, 2, 15, 2),
    Sketcher.Constraint("Coincident", 15, 1, 12, 1),
    Sketcher.Constraint("Coincident", 16, 2, 17, 1),
    Sketcher.Constraint("Coincident", 17, 2, 18, 2),
    Sketcher.Constraint("Coincident", 18, 1, 19, 1),
    Sketcher.Constraint("Coincident", 19, 2, 16, 1),
    Sketcher.Constraint("Coincident", 20, 2, 21, 1),
    Sketcher.Constraint("Coincident", 21, 2, 22, 1),
    Sketcher.Constraint("Coincident", 22, 2, 23, 2),
    Sketcher.Constraint("Coincident", 23, 1, 20, 1),
    Sketcher.Constraint("Horizontal", 1),
    Sketcher.Constraint("Horizontal", 3),
    Sketcher.Constraint("Horizontal", 20),
    Sketcher.Constraint("Horizontal", 22),
    Sketcher.Constraint("Coincident", 0, 3, -1, 1),
    Sketcher.Constraint("Coincident", 2, 3, -1, 1),
    Sketcher.Constraint("Coincident", 5, 3, -1, 1),
    Sketcher.Constraint("Coincident", 8, 3, -1, 1),
    Sketcher.Constraint("Coincident", 13, 3, -1, 1),
    Sketcher.Constraint("Coincident", 16, 3, -1, 1),
    Sketcher.Constraint("Coincident", 21, 3, -1, 1),
    Sketcher.Constraint("Coincident", 23, 3, -1, 1),
    Sketcher.Constraint("Equal", 0, 5),
    Sketcher.Constraint("Equal", 5, 8),
    Sketcher.Constraint("Equal", 8, 13),
    Sketcher.Constraint("Equal", 10, 15),
    Sketcher.Constraint("Equal", 13, 16),
    Sketcher.Constraint("Equal", 7, 18),
    Sketcher.Constraint("Equal", 16, 21),
    Sketcher.Constraint("Equal", 2, 23),
    Sketcher.Constraint("Symmetric", 10, 3, 15, 3, -1, 1),
    Sketcher.Constraint("Symmetric", 7, 3, 18, 3, -1, 1),
    Sketcher.Constraint("Symmetric", 7, 1, 14, 2, -2),
    Sketcher.Constraint("Symmetric", 6, 2, 15, 1, -2),
    Sketcher.Constraint("Parallel", 4, 6),
    Sketcher.Constraint("Parallel", 9, 11),
    Sketcher.Constraint("Parallel", 11, 12),
    Sketcher.Constraint("Parallel", 12, 14),
    Sketcher.Constraint("Parallel", 6, 17),
    Sketcher.Constraint("Parallel", 17, 19),
    Sketcher.Constraint("Horizontal", 5, 2, 12, 2),
    Sketcher.Constraint("Horizontal", 11, 2, 16, 2),
    Sketcher.Constraint("Horizontal", 9, 2, 18, 1),
    Sketcher.Constraint("Horizontal", 1, 2, 20, 2),
    Sketcher.Constraint("Horizontal", 3, 2, 21, 2),
    Sketcher.Constraint("Vertical", 1, 2, 2, 1),
    Sketcher.Constraint("Vertical", 4, 2, 8, 2),
    Sketcher.Constraint("Vertical", 6, 2, 10, 1),
    Sketcher.Constraint("Equal", 4, 6),
    Sketcher.Constraint("Radius", 2, Q("18 mm")),
    Sketcher.Constraint("Radius", 0, Q("22 mm")),
    Sketcher.Constraint("Angle", 4, Q("59.9992 deg")),
    Sketcher.Constraint("DistanceY", -1, 1, 0, 2, Q("1 mm")),
    Sketcher.Constraint("DistanceY", 4, 2, 5, 2, Q("1 mm")),
    Sketcher.Constraint("Radius", 7, Q("18.0085 mm")),
    Sketcher.Constraint("Radius", 10, Q("17.9915 mm")),
    Sketcher.Constraint("DistanceX", -1, 1, 6, 2, Q("8.12 mm")),
    Sketcher.Constraint("DistanceX", 9, 2, 2, 1, Q("8.12 mm")),
])
sketch3.setExpression("Constraints[63]", "Params.sketch3_radius")
sketch3.setExpression("Constraints[64]", "Params.sketch3_radius2")
pad2 = doc.addObject("PartDesign::Pad", "Pad001")
body.addObject(pad2)
pad2.Profile = sketch3
pad2.setExpression("Length", "Params.pad2_length")

doc.recompute()
